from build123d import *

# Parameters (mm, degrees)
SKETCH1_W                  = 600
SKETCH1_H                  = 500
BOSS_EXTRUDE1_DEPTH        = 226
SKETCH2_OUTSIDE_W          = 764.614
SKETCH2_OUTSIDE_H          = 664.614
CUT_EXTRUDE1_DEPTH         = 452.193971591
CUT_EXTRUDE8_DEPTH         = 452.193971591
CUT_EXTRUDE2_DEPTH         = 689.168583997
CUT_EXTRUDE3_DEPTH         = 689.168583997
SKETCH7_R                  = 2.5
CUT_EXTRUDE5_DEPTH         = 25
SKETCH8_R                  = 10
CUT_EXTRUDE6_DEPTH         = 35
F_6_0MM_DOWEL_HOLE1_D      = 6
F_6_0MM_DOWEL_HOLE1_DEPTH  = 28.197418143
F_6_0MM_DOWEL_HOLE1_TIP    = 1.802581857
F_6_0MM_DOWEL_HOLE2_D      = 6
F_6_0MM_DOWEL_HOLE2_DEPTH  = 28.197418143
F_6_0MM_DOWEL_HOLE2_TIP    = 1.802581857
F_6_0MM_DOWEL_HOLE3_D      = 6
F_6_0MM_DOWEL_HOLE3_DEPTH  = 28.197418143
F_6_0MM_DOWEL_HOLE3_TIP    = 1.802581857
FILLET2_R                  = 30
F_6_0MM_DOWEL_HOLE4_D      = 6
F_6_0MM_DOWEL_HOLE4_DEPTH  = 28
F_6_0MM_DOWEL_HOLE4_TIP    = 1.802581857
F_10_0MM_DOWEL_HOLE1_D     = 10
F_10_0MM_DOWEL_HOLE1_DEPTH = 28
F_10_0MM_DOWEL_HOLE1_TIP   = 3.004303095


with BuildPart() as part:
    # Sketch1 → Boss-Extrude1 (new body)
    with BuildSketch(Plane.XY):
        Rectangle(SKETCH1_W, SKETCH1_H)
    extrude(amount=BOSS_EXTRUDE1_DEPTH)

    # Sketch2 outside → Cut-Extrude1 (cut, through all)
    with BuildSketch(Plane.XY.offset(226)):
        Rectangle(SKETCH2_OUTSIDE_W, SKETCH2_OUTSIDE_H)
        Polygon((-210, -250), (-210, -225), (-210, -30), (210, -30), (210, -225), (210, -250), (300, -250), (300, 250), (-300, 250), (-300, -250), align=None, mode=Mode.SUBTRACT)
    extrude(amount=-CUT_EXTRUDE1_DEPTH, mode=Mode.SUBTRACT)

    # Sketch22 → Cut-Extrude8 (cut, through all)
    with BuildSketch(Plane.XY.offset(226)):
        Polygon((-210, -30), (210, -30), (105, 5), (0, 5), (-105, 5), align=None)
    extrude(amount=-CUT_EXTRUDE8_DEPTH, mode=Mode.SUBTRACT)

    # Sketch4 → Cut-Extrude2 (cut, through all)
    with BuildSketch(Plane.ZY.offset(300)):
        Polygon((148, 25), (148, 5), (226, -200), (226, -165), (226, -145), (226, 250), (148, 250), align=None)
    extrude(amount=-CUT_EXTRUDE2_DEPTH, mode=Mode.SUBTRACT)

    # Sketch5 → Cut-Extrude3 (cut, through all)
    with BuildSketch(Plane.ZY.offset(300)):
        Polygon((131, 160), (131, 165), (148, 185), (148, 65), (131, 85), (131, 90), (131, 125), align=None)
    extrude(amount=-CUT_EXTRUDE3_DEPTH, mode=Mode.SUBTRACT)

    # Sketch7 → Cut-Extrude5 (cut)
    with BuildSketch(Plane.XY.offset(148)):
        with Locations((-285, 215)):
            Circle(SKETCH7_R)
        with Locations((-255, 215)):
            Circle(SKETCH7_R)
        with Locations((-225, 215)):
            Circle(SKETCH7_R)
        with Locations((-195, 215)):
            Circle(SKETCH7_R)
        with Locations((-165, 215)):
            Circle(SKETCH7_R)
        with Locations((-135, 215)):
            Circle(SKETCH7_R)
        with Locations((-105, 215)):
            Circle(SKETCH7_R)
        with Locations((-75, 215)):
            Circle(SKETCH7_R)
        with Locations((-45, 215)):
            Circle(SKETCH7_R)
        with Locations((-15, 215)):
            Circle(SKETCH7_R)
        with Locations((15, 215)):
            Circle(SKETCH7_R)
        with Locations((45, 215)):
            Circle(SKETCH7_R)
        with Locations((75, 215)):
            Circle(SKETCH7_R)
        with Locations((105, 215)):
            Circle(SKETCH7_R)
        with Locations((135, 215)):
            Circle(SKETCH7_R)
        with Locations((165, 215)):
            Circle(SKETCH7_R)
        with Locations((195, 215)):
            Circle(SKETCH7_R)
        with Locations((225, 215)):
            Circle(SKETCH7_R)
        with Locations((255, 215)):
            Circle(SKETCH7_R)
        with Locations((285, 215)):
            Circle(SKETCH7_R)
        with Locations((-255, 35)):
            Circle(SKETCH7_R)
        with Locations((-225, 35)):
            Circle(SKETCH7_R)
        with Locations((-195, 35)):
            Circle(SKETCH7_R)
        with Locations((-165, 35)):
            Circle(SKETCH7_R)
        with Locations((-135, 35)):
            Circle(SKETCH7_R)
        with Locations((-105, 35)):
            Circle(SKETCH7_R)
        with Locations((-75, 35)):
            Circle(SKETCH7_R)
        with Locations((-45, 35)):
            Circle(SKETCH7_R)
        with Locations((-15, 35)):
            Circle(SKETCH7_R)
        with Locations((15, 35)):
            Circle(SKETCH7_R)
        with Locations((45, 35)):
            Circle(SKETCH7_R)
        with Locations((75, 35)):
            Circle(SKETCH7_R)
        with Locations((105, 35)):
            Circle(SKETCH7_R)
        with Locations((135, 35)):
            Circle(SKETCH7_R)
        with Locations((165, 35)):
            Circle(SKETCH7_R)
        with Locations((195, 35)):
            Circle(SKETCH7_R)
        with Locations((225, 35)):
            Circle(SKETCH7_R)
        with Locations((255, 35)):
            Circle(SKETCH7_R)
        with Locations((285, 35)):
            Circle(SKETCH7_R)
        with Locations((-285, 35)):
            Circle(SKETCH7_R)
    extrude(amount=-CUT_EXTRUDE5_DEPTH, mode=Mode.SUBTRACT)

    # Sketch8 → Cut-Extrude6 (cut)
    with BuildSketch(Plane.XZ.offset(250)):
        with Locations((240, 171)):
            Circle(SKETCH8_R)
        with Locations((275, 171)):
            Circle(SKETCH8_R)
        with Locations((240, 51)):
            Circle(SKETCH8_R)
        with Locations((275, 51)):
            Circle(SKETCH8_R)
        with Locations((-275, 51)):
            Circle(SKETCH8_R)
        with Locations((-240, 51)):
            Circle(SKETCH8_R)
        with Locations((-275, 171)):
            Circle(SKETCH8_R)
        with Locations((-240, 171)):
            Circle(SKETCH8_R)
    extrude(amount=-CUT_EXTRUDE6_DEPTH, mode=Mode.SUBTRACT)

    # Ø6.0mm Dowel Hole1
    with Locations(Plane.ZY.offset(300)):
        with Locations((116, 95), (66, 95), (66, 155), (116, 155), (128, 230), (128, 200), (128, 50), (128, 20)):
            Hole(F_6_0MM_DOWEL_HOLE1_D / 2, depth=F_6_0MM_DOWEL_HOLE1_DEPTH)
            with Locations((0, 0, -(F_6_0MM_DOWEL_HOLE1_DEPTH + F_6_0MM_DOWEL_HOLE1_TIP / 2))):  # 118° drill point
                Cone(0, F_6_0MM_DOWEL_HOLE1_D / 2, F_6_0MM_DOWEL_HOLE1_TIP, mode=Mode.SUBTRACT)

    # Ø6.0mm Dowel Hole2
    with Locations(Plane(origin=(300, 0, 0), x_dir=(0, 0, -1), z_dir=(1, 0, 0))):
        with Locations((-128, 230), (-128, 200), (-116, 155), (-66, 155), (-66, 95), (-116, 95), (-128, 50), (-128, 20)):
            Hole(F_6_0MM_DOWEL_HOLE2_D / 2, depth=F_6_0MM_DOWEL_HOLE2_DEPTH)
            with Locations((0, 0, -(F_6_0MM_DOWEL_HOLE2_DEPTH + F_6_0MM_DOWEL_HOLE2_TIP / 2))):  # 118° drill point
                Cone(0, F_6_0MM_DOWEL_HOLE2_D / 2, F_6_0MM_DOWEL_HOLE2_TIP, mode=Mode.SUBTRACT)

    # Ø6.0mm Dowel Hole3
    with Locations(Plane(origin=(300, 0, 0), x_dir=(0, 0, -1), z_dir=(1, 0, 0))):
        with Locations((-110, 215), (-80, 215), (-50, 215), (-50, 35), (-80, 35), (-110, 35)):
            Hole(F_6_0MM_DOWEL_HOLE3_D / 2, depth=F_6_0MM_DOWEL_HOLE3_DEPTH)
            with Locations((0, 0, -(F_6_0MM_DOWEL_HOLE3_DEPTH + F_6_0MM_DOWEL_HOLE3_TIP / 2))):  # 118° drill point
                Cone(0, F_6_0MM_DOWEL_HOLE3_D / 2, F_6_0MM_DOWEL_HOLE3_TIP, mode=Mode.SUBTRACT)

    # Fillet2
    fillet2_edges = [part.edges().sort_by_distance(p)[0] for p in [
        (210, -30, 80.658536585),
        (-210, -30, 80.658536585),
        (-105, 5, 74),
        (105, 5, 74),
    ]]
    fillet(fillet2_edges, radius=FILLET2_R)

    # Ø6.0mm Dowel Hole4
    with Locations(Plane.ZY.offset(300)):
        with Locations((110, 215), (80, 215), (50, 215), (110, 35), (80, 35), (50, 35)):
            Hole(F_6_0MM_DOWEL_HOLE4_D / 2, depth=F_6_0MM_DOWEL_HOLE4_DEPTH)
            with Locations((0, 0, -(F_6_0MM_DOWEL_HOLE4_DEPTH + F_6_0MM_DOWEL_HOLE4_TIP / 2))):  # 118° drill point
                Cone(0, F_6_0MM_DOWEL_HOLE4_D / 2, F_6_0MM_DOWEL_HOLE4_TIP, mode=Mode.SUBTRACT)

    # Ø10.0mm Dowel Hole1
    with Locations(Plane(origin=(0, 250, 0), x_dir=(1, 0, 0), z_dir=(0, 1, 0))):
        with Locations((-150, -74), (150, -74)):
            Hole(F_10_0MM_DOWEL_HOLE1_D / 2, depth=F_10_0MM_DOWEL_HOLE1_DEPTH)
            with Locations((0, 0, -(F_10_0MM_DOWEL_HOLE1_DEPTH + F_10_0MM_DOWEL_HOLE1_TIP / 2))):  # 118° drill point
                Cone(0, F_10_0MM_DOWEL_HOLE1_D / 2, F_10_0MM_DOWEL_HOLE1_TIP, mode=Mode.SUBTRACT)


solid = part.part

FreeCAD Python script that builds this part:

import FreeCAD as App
import Part
import Sketcher
Q = App.Units.Quantity


def edges_at(feature, points):
    """Names of the edges that pass closest to the given points."""
    edges = feature.Shape.Edges
    near = lambda p: min(range(len(edges)), key=lambda i: edges[i].distToShape(Part.Vertex(*p))[0])
    return sorted({f"Edge{near(p) + 1}" for p in points})


def add_polygon(sketch, points):
    """Adds a closed chain of lines whose ends are joined by coincident constraints."""
    first, n = sketch.GeometryCount, len(points)
    for a, b in zip(points, points[1:] + points[:1]):
        sketch.addGeometry(Part.LineSegment(App.Vector(*a, 0), App.Vector(*b, 0)), False)
    for i in range(n):
        sketch.addConstraint(Sketcher.Constraint("Coincident", first + i, 2, first + (i + 1) % n, 1))

doc = App.newDocument("Part")
params = doc.addObject("Spreadsheet::Sheet", "Params")
for row, (alias, value) in enumerate([
    ("sketch1_width", "600 mm"),
    ("sketch1_height", "500 mm"),
    ("pad1_length", "226 mm"),
    ("sketch2_width", "90 mm"),
    ("sketch2_width2", "600 mm"),
    ("sketch2_height", "220 mm"),
    ("sketch2_height2", "500 mm"),
    ("sketch3_width", "420 mm"),
    ("sketch3_width2", "210 mm"),
    ("sketch4_width", "450 mm"),
    ("sketch4_width2", "245 mm"),
    ("sketch4_height", "78 mm"),
    ("sketch5_width", "80 mm"),
    ("sketch5_width2", "120 mm"),
    ("sketch6_diameter", "5 mm"),
    ("pocket5_length", "25 mm"),
    ("sketch7_diameter", "20 mm"),
    ("pocket6_length", "35 mm"),
    ("sketch8_diameter", "6 mm"),
    ("hole_diameter", "6 mm"),
    ("hole_depth", "28.197418 mm"),
    ("sketch9_diameter", "6 mm"),
    ("hole2_diameter", "6 mm"),
    ("hole2_depth", "28.197418 mm"),
    ("sketch10_diameter", "6 mm"),
    ("hole3_diameter", "6 mm"),
    ("hole3_depth", "28.197418 mm"),
    ("fillet_radius", "30 mm"),
    ("sketch11_diameter", "6 mm"),
    ("hole4_diameter", "6 mm"),
    ("hole4_depth", "28 mm"),
    ("sketch12_diameter", "10 mm"),
    ("hole5_diameter", "10 mm"),
    ("hole5_depth", "28 mm"),
], start=1):
    params.set(f"A{row}", alias)
    params.set(f"B{row}", "=" + value)
    params.setAlias(f"B{row}", alias)

body = doc.addObject("PartDesign::Body", "Body")

# Sketch on XY plane
sketch1 = body.newObject("Sketcher::SketchObject", "Sketch")
sketch1.AttachmentSupport = (doc.getObject("XY_Plane"), [""])
sketch1.MapMode = "FlatFace"
add_polygon(sketch1, [(-300, 250), (-300, -250), (300, -250), (300, 250)])  # lines 0-3
sketch1.addConstraint(Sketcher.Constraint("Vertical", 0))
sketch1.addConstraint(Sketcher.Constraint("Horizontal", 1))
sketch1.addConstraint(Sketcher.Constraint("Vertical", 2))
sketch1.addConstraint(Sketcher.Constraint("Horizontal", 3))
sketch1.addConstraint(Sketcher.Constraint("Symmetric", 0, 2, 2, 2, -1, 1))
sketch1.addConstraint(Sketcher.Constraint("DistanceX", 1, 1, 1, 2, Q("600 mm")))
sketch1.addConstraint(Sketcher.Constraint("DistanceY", 0, 2, 0, 1, Q("500 mm")))
sketch1.setExpression("Constraints[9]", "Params.sketch1_width")
sketch1.setExpression("Constraints[10]", "Params.sketch1_height")
pad1 = body.newObject("PartDesign::Pad", "Pad")
pad1.Profile = sketch1
pad1.setExpression("Length", "Params.pad1_length")

# Sketch on XY plane
sketch2 = body.newObject("Sketcher::SketchObject", "Sketch001")
sketch2.AttachmentSupport = (doc.getObject("XY_Plane"), [""])
sketch2.MapMode = "FlatFace"
sketch2.AttachmentOffset = App.Placement(App.Vector(0, 0, 226), App.Rotation())
add_polygon(sketch2, [(-382, 332), (-382, -332), (382, -332), (382, 332)])  # lines 0-3
add_polygon(sketch2, [(-210, -30), (-210, -250), (-300, -250), (-300, 250), (300, 250), (300, -250), (210, -250), (210, -30)])  # lines 4-11
sketch2.addConstraint(Sketcher.Constraint("Vertical", 0))
sketch2.addConstraint(Sketcher.Constraint("Horizontal", 1))
sketch2.addConstraint(Sketcher.Constraint("Vertical", 2))
sketch2.addConstraint(Sketcher.Constraint("Horizontal", 3))
sketch2.addConstraint(Sketcher.Constraint("Vertical", 4))
sketch2.addConstraint(Sketcher.Constraint("Horizontal", 5))
sketch2.addConstraint(Sketcher.Constraint("Vertical", 6))
sketch2.addConstraint(Sketcher.Constraint("Horizontal", 7))
sketch2.addConstraint(Sketcher.Constraint("Vertical", 8))
sketch2.addConstraint(Sketcher.Constraint("Horizontal", 9))
sketch2.addConstraint(Sketcher.Constraint("Vertical", 10))
sketch2.addConstraint(Sketcher.Constraint("Horizontal", 11))
sketch2.addConstraint(Sketcher.Constraint("Symmetric", 0, 2, 2, 2, -1, 1))
sketch2.addConstraint(Sketcher.Constraint("Symmetric", 5, 2, 7, 2, -1, 1))
sketch2.addConstraint(Sketcher.Constraint("Symmetric", 4, 2, 9, 2, -2))
sketch2.addConstraint(Sketcher.Constraint("DistanceX", 5, 2, 5, 1, Q("90 mm")))
sketch2.addConstraint(Sketcher.Constraint("DistanceX", 7, 1, 7, 2, Q("600 mm")))
sketch2.addConstraint(Sketcher.Constraint("DistanceY", 4, 2, 4, 1, Q("220 mm")))
sketch2.addConstraint(Sketcher.Constraint("DistanceY", 6, 1, 6, 2, Q("500 mm")))
sketch2.addConstraint(Sketcher.Constraint("DistanceX", 1, 1, 1, 2, Q("764.614 mm")))
sketch2.addConstraint(Sketcher.Constraint("DistanceY", 0, 2, 0, 1, Q("664.614 mm")))
sketch2.setExpression("Constraints[27]", "Params.sketch2_width")
sketch2.setExpression("Constraints[28]", "Params.sketch2_width2")
sketch2.setExpression("Constraints[29]", "Params.sketch2_height")
sketch2.setExpression("Constraints[30]", "Params.sketch2_height2")
pocket1 = body.newObject("PartDesign::Pocket", "Pocket")
pocket1.Profile = sketch2
pocket1.Type = "ThroughAll"

# Sketch on XY plane
sketch3 = body.newObject("Sketcher::SketchObject", "Sketch002")
sketch3.AttachmentSupport = (doc.getObject("XY_Plane"), [""])
sketch3.MapMode = "FlatFace"
sketch3.AttachmentOffset = App.Placement(App.Vector(0, 0, 226), App.Rotation())
add_polygon(sketch3, [(-210, -30), (210, -30), (105, 5), (-105, 5)])  # lines 0-3
sketch3.addConstraint(Sketcher.Constraint("Horizontal", 0))
sketch3.addConstraint(Sketcher.Constraint("Horizontal", 2))
sketch3.addConstraint(Sketcher.Constraint("Equal", 1, 3))
sketch3.addConstraint(Sketcher.Constraint("DistanceX", 0, 1, 0, 2, Q("420 mm")))
sketch3.addConstraint(Sketcher.Constraint("DistanceX", 2, 2, 2, 1, Q("210 mm")))
sketch3.addConstraint(Sketcher.Constraint("DistanceX", -1, 1, 0, 2, Q("210 mm")))
sketch3.addConstraint(Sketcher.Constraint("DistanceY", 0, 2, -1, 1, Q("30 mm")))
sketch3.addConstraint(Sketcher.Constraint("DistanceY", -1, 1, 1, 2, Q("5 mm")))
sketch3.setExpression("Constraints[7]", "Params.sketch3_width")
sketch3.setExpression("Constraints[8]", "Params.sketch3_width2")
pocket2 = body.newObject("PartDesign::Pocket", "Pocket001")
pocket2.Profile = sketch3
pocket2.Type = "ThroughAll"

# Sketch on YZ plane
sketch4 = body.newObject("Sketcher::SketchObject", "Sketch003")
sketch4.AttachmentSupport = (doc.getObject("YZ_Plane"), [""])
sketch4.MapMode = "FlatFace"
sketch4.AttachmentOffset = App.Placement(App.Vector(0, 0, -300), App.Rotation())
add_polygon(sketch4, [(5, 148), (-200, 226), (250, 226), (250, 148)])  # lines 0-3
sketch4.addConstraint(Sketcher.Constraint("Horizontal", 1))
sketch4.addConstraint(Sketcher.Constraint("Vertical", 2))
sketch4.addConstraint(Sketcher.Constraint("Horizontal", 3))
sketch4.addConstraint(Sketcher.Constraint("DistanceX", 1, 1, 1, 2, Q("450 mm")))
sketch4.addConstraint(Sketcher.Constraint("DistanceX", 3, 2, 3, 1, Q("245 mm")))
sketch4.addConstraint(Sketcher.Constraint("DistanceY", 2, 2, 2, 1, Q("78 mm")))
sketch4.addConstraint(Sketcher.Constraint("DistanceX", 0, 2, -1, 1, Q("200 mm")))
sketch4.addConstraint(Sketcher.Constraint("DistanceY", -1, 1, 0, 2, Q("226 mm")))
sketch4.setExpression("Constraints[7]", "Params.sketch4_width")
sketch4.setExpression("Constraints[8]", "Params.sketch4_width2")
sketch4.setExpression("Constraints[9]", "Params.sketch4_height")
pocket3 = body.newObject("PartDesign::Pocket", "Pocket002")
pocket3.Profile = sketch4
pocket3.Type = "ThroughAll"
pocket3.Reversed = True

# Sketch on YZ plane
sketch5 = body.newObject("Sketcher::SketchObject", "Sketch004")
sketch5.AttachmentSupport = (doc.getObject("YZ_Plane"), [""])
sketch5.MapMode = "FlatFace"
sketch5.AttachmentOffset = App.Placement(App.Vector(0, 0, -300), App.Rotation())
add_polygon(sketch5, [(165, 131), (85, 131), (65, 148), (185, 148)])  # lines 0-3
sketch5.addConstraint(Sketcher.Constraint("Horizontal", 0))
sketch5.addConstraint(Sketcher.Constraint("Horizontal", 2))
sketch5.addConstraint(Sketcher.Constraint("Equal", 1, 3))
sketch5.addConstraint(Sketcher.Constraint("DistanceX", 0, 2, 0, 1, Q("80 mm")))
sketch5.addConstraint(Sketcher.Constraint("DistanceX", 2, 1, 2, 2, Q("120 mm")))
sketch5.addConstraint(Sketcher.Constraint("DistanceX", -1, 1, 0, 2, Q("85 mm")))
sketch5.addConstraint(Sketcher.Constraint("DistanceY", -1, 1, 0, 2, Q("131 mm")))
sketch5.addConstraint(Sketcher.Constraint("DistanceY", -1, 1, 1, 2, Q("148 mm")))
sketch5.setExpression("Constraints[7]", "Params.sketch5_width")
sketch5.setExpression("Constraints[8]", "Params.sketch5_width2")
pocket4 = body.newObject("PartDesign::Pocket", "Pocket003")
pocket4.Profile = sketch5
pocket4.Type = "ThroughAll"
pocket4.Reversed = True

# Sketch on XY plane
sketch6 = body.newObject("Sketcher::SketchObject", "Sketch005")
sketch6.AttachmentSupport = (doc.getObject("XY_Plane"), [""])
sketch6.MapMode = "FlatFace"
sketch6.AttachmentOffset = App.Placement(App.Vector(0, 0, 148), App.Rotation())
sketch6.addGeometry(Part.Circle(App.Vector(-285, 215, 0), App.Vector(0, 0, 1), 2.5), False)
sketch6.addGeometry(Part.Circle(App.Vector(-255, 215, 0), App.Vector(0, 0, 1), 2.5), False)
sketch6.addGeometry(Part.Circle(App.Vector(-225, 215, 0), App.Vector(0, 0, 1), 2.5), False)
sketch6.addGeometry(Part.Circle(App.Vector(-195, 215, 0), App.Vector(0, 0, 1), 2.5), False)
sketch6.addGeometry(Part.Circle(App.Vector(-165, 215, 0), App.Vector(0, 0, 1), 2.5), False)
sketch6.addGeometry(Part.Circle(App.Vector(-135, 215, 0), App.Vector(0, 0, 1), 2.5), False)
sketch6.addGeometry(Part.Circle(App.Vector(-105, 215, 0), App.Vector(0, 0, 1), 2.5), False)
sketch6.addGeometry(Part.Circle(App.Vector(-75, 215, 0), App.Vector(0, 0, 1), 2.5), False)
sketch6.addGeometry(Part.Circle(App.Vector(-45, 215, 0), App.Vector(0, 0, 1), 2.5), False)
sketch6.addGeometry(Part.Circle(App.Vector(-15, 215, 0), App.Vector(0, 0, 1), 2.5), False)
sketch6.addGeometry(Part.Circle(App.Vector(15, 215, 0), App.Vector(0, 0, 1), 2.5), False)
sketch6.addGeometry(Part.Circle(App.Vector(45, 215, 0), App.Vector(0, 0, 1), 2.5), False)
sketch6.addGeometry(Part.Circle(App.Vector(75, 215, 0), App.Vector(0, 0, 1), 2.5), False)
sketch6.addGeometry(Part.Circle(App.Vector(105, 215, 0), App.Vector(0, 0, 1), 2.5), False)
sketch6.addGeometry(Part.Circle(App.Vector(135, 215, 0), App.Vector(0, 0, 1), 2.5), False)
sketch6.addGeometry(Part.Circle(App.Vector(165, 215, 0), App.Vector(0, 0, 1), 2.5), False)
sketch6.addGeometry(Part.Circle(App.Vector(195, 215, 0), App.Vector(0, 0, 1), 2.5), False)
sketch6.addGeometry(Part.Circle(App.Vector(225, 215, 0), App.Vector(0, 0, 1), 2.5), False)
sketch6.addGeometry(Part.Circle(App.Vector(255, 215, 0), App.Vector(0, 0, 1), 2.5), False)
sketch6.addGeometry(Part.Circle(App.Vector(285, 215, 0), App.Vector(0, 0, 1), 2.5), False)
sketch6.addGeometry(Part.Circle(App.Vector(-255, 35, 0), App.Vector(0, 0, 1), 2.5), False)
sketch6.addGeometry(Part.Circle(App.Vector(-225, 35, 0), App.Vector(0, 0, 1), 2.5), False)
sketch6.addGeometry(Part.Circle(App.Vector(-195, 35, 0), App.Vector(0, 0, 1), 2.5), False)
sketch6.addGeometry(Part.Circle(App.Vector(-165, 35, 0), App.Vector(0, 0, 1), 2.5), False)
sketch6.addGeometry(Part.Circle(App.Vector(-135, 35, 0), App.Vector(0, 0, 1), 2.5), False)
sketch6.addGeometry(Part.Circle(App.Vector(-105, 35, 0), App.Vector(0, 0, 1), 2.5), False)
sketch6.addGeometry(Part.Circle(App.Vector(-75, 35, 0), App.Vector(0, 0, 1), 2.5), False)
sketch6.addGeometry(Part.Circle(App.Vector(-45, 35, 0), App.Vector(0, 0, 1), 2.5), False)
sketch6.addGeometry(Part.Circle(App.Vector(-15, 35, 0), App.Vector(0, 0, 1), 2.5), False)
sketch6.addGeometry(Part.Circle(App.Vector(15, 35, 0), App.Vector(0, 0, 1), 2.5), False)
sketch6.addGeometry(Part.Circle(App.Vector(45, 35, 0), App.Vector(0, 0, 1), 2.5), False)
sketch6.addGeometry(Part.Circle(App.Vector(75, 35, 0), App.Vector(0, 0, 1), 2.5), False)
sketch6.addGeometry(Part.Circle(App.Vector(105, 35, 0), App.Vector(0, 0, 1), 2.5), False)
sketch6.addGeometry(Part.Circle(App.Vector(135, 35, 0), App.Vector(0, 0, 1), 2.5), False)
sketch6.addGeometry(Part.Circle(App.Vector(165, 35, 0), App.Vector(0, 0, 1), 2.5), False)
sketch6.addGeometry(Part.Circle(App.Vector(195, 35, 0), App.Vector(0, 0, 1), 2.5), False)
sketch6.addGeometry(Part.Circle(App.Vector(225, 35, 0), App.Vector(0, 0, 1), 2.5), False)
sketch6.addGeometry(Part.Circle(App.Vector(255, 35, 0), App.Vector(0, 0, 1), 2.5), False)
sketch6.addGeometry(Part.Circle(App.Vector(285, 35, 0), App.Vector(0, 0, 1), 2.5), False)
sketch6.addGeometry(Part.Circle(App.Vector(-285, 35, 0), App.Vector(0, 0, 1), 2.5), False)
sketch6.addConstraint(Sketcher.Constraint("Equal", 0, 1))
sketch6.addConstraint(Sketcher.Constraint("Equal", 1, 2))
sketch6.addConstraint(Sketcher.Constraint("Equal", 2, 3))
sketch6.addConstraint(Sketcher.Constraint("Equal", 3, 4))
sketch6.addConstraint(Sketcher.Constraint("Equal", 4, 5))
sketch6.addConstraint(Sketcher.Constraint("Equal", 5, 6))
sketch6.addConstraint(Sketcher.Constraint("Equal", 6, 7))
sketch6.addConstraint(Sketcher.Constraint("Equal", 7, 8))
sketch6.addConstraint(Sketcher.Constraint("Equal", 8, 9))
sketch6.addConstraint(Sketcher.Constraint("Equal", 9, 10))
sketch6.addConstraint(Sketcher.Constraint("Equal", 10, 11))
sketch6.addConstraint(Sketcher.Constraint("Equal", 11, 12))
sketch6.addConstraint(Sketcher.Constraint("Equal", 12, 13))
sketch6.addConstraint(Sketcher.Constraint("Equal", 13, 14))
sketch6.addConstraint(Sketcher.Constraint("Equal", 14, 15))
sketch6.addConstraint(Sketcher.Constraint("Equal", 15, 16))
sketch6.addConstraint(Sketcher.Constraint("Equal", 16, 17))
sketch6.addConstraint(Sketcher.Constraint("Equal", 17, 18))
sketch6.addConstraint(Sketcher.Constraint("Equal", 18, 19))
sketch6.addConstraint(Sketcher.Constraint("Equal", 19, 20))
sketch6.addConstraint(Sketcher.Constraint("Equal", 20, 21))
sketch6.addConstraint(Sketcher.Constraint("Equal", 21, 22))
sketch6.addConstraint(Sketcher.Constraint("Equal", 22, 23))
sketch6.addConstraint(Sketcher.Constraint("Equal", 23, 24))
sketch6.addConstraint(Sketcher.Constraint("Equal", 24, 25))
sketch6.addConstraint(Sketcher.Constraint("Equal", 25, 26))
sketch6.addConstraint(Sketcher.Constraint("Equal", 26, 27))
sketch6.addConstraint(Sketcher.Constraint("Equal", 27, 28))
sketch6.addConstraint(Sketcher.Constraint("Equal", 28, 29))
sketch6.addConstraint(Sketcher.Constraint("Equal", 29, 30))
sketch6.addConstraint(Sketcher.Constraint("Equal", 30, 31))
sketch6.addConstraint(Sketcher.Constraint("Equal", 31, 32))
sketch6.addConstraint(Sketcher.Constraint("Equal", 32, 33))
sketch6.addConstraint(Sketcher.Constraint("Equal", 33, 34))
sketch6.addConstraint(Sketcher.Constraint("Equal", 34, 35))
sketch6.addConstraint(Sketcher.Constraint("Equal", 35, 36))
sketch6.addConstraint(Sketcher.Constraint("Equal", 36, 37))
sketch6.addConstraint(Sketcher.Constraint("Equal", 37, 38))
sketch6.addConstraint(Sketcher.Constraint("Equal", 38, 39))
sketch6.addConstraint(Sketcher.Constraint("Symmetric", 9, 3, 10, 3, -2))
sketch6.addConstraint(Sketcher.Constraint("Symmetric", 8, 3, 11, 3, -2))
sketch6.addConstraint(Sketcher.Constraint("Symmetric", 7, 3, 12, 3, -2))
sketch6.addConstraint(Sketcher.Constraint("Symmetric", 6, 3, 13, 3, -2))
sketch6.addConstraint(Sketcher.Constraint("Symmetric", 5, 3, 14, 3, -2))
sketch6.addConstraint(Sketcher.Constraint("Symmetric", 4, 3, 15, 3, -2))
sketch6.addConstraint(Sketcher.Constraint("Symmetric", 3, 3, 16, 3, -2))
sketch6.addConstraint(Sketcher.Constraint("Symmetric", 2, 3, 17, 3, -2))
sketch6.addConstraint(Sketcher.Constraint("Symmetric", 1, 3, 18, 3, -2))
sketch6.addConstraint(Sketcher.Constraint("Symmetric", 0, 3, 19, 3, -2))
sketch6.addConstraint(Sketcher.Constraint("Symmetric", 28, 3, 29, 3, -2))
sketch6.addConstraint(Sketcher.Constraint("Symmetric", 27, 3, 30, 3, -2))
sketch6.addConstraint(Sketcher.Constraint("Symmetric", 26, 3, 31, 3, -2))
sketch6.addConstraint(Sketcher.Constraint("Symmetric", 25, 3, 32, 3, -2))
sketch6.addConstraint(Sketcher.Constraint("Symmetric", 24, 3, 33, 3, -2))
sketch6.addConstraint(Sketcher.Constraint("Symmetric", 23, 3, 34, 3, -2))
sketch6.addConstraint(Sketcher.Constraint("Symmetric", 22, 3, 35, 3, -2))
sketch6.addConstraint(Sketcher.Constraint("Symmetric", 21, 3, 36, 3, -2))
sketch6.addConstraint(Sketcher.Constraint("Symmetric", 20, 3, 37, 3, -2))
sketch6.addConstraint(Sketcher.Constraint("Symmetric", 38, 3, 39, 3, -2))
sketch6.addConstraint(Sketcher.Constraint("Horizontal", 0, 3, 1, 3))
sketch6.addConstraint(Sketcher.Constraint("Horizontal", 1, 3, 2, 3))
sketch6.addConstraint(Sketcher.Constraint("Horizontal", 2, 3, 3, 3))
sketch6.addConstraint(Sketcher.Constraint("Horizontal", 3, 3, 4, 3))
sketch6.addConstraint(Sketcher.Constraint("Horizontal", 4, 3, 5, 3))
sketch6.addConstraint(Sketcher.Constraint("Horizontal", 5, 3, 6, 3))
sketch6.addConstraint(Sketcher.Constraint("Horizontal", 6, 3, 7, 3))
sketch6.addConstraint(Sketcher.Constraint("Horizontal", 7, 3, 8, 3))
sketch6.addConstraint(Sketcher.Constraint("Horizontal", 8, 3, 9, 3))
sketch6.addConstraint(Sketcher.Constraint("Horizontal", 20, 3, 21, 3))
sketch6.addConstraint(Sketcher.Constraint("Horizontal", 21, 3, 22, 3))
sketch6.addConstraint(Sketcher.Constraint("Horizontal", 22, 3, 23, 3))
sketch6.addConstraint(Sketcher.Constraint("Horizontal", 23, 3, 24, 3))
sketch6.addConstraint(Sketcher.Constraint("Horizontal", 24, 3, 25, 3))
sketch6.addConstraint(Sketcher.Constraint("Horizontal", 25, 3, 26, 3))
sketch6.addConstraint(Sketcher.Constraint("Horizontal", 26, 3, 27, 3))
sketch6.addConstraint(Sketcher.Constraint("Horizontal", 27, 3, 28, 3))
sketch6.addConstraint(Sketcher.Constraint("Horizontal", 37, 3, 38, 3))
sketch6.addConstraint(Sketcher.Constraint("Vertical", 1, 3, 20, 3))
sketch6.addConstraint(Sketcher.Constraint("Vertical", 2, 3, 21, 3))
sketch6.addConstraint(Sketcher.Constraint("Vertical", 3, 3, 22, 3))
sketch6.addConstraint(Sketcher.Constraint("Vertical", 4, 3, 23, 3))
sketch6.addConstraint(Sketcher.Constraint("Vertical", 5, 3, 24, 3))
sketch6.addConstraint(Sketcher.Constraint("Vertical", 6, 3, 25, 3))
sketch6.addConstraint(Sketcher.Constraint("Vertical", 7, 3, 26, 3))
sketch6.addConstraint(Sketcher.Constraint("Vertical", 8, 3, 27, 3))
sketch6.addConstraint(Sketcher.Constraint("Vertical", 9, 3, 28, 3))
sketch6.addConstraint(Sketcher.Constraint("Vertical", 19, 3, 38, 3))
sketch6.addConstraint(Sketcher.Constraint("Diameter", 0, Q("5 mm")))
sketch6.addConstraint(Sketcher.Constraint("DistanceX", 0, 3, -1, 1, Q("285 mm")))
sketch6.addConstraint(Sketcher.Constraint("DistanceY", -1, 1, 0, 3, Q("215 mm")))
sketch6.addConstraint(Sketcher.Constraint("DistanceX", 1, 3, -1, 1, Q("255 mm")))
sketch6.addConstraint(Sketcher.Constraint("DistanceX", 2, 3, -1, 1, Q("225 mm")))
sketch6.addConstraint(Sketcher.Constraint("DistanceX", 3, 3, -1, 1, Q("195 mm")))
sketch6.addConstraint(Sketcher.Constraint("DistanceX", 4, 3, -1, 1, Q("165 mm")))
sketch6.addConstraint(Sketcher.Constraint("DistanceX", 5, 3, -1, 1, Q("135 mm")))
sketch6.addConstraint(Sketcher.Constraint("DistanceX", 6, 3, -1, 1, Q("105 mm")))
sketch6.addConstraint(Sketcher.Constraint("DistanceX", 7, 3, -1, 1, Q("75 mm")))
sketch6.addConstraint(Sketcher.Constraint("DistanceX", 8, 3, -1, 1, Q("45 mm")))
sketch6.addConstraint(Sketcher.Constraint("DistanceX", 9, 3, -1, 1, Q("15 mm")))
sketch6.addConstraint(Sketcher.Constraint("DistanceY", -1, 1, 20, 3, Q("35 mm")))
sketch6.setExpression("Constraints[87]", "Params.sketch6_diameter")
pocket5 = body.newObject("PartDesign::Pocket", "Pocket004")
pocket5.Profile = sketch6
pocket5.setExpression("Length", "Params.pocket5_length")

# Sketch on XZ plane
sketch7 = body.newObject("Sketcher::SketchObject", "Sketch006")
sketch7.AttachmentSupport = (doc.getObject("XZ_Plane"), [""])
sketch7.MapMode = "FlatFace"
sketch7.AttachmentOffset = App.Placement(App.Vector(0, 0, 250), App.Rotation())
sketch7.addGeometry(Part.Circle(App.Vector(240, 171, 0), App.Vector(0, 0, 1), 10), False)
sketch7.addGeometry(Part.Circle(App.Vector(275, 171, 0), App.Vector(0, 0, 1), 10), False)
sketch7.addGeometry(Part.Circle(App.Vector(240, 51, 0), App.Vector(0, 0, 1), 10), False)
sketch7.addGeometry(Part.Circle(App.Vector(275, 51, 0), App.Vector(0, 0, 1), 10), False)
sketch7.addGeometry(Part.Circle(App.Vector(-275, 51, 0), App.Vector(0, 0, 1), 10), False)
sketch7.addGeometry(Part.Circle(App.Vector(-240, 51, 0), App.Vector(0, 0, 1), 10), False)
sketch7.addGeometry(Part.Circle(App.Vector(-275, 171, 0), App.Vector(0, 0, 1), 10), False)
sketch7.addGeometry(Part.Circle(App.Vector(-240, 171, 0), App.Vector(0, 0, 1), 10), False)
sketch7.addConstraint(Sketcher.Constraint("Equal", 0, 1))
sketch7.addConstraint(Sketcher.Constraint("Equal", 1, 2))
sketch7.addConstraint(Sketcher.Constraint("Equal", 2, 3))
sketch7.addConstraint(Sketcher.Constraint("Equal", 3, 4))
sketch7.addConstraint(Sketcher.Constraint("Equal", 4, 5))
sketch7.addConstraint(Sketcher.Constraint("Equal", 5, 6))
sketch7.addConstraint(Sketcher.Constraint("Equal", 6, 7))
sketch7.addConstraint(Sketcher.Constraint("Symmetric", 3, 3, 4, 3, -2))
sketch7.addConstraint(Sketcher.Constraint("Symmetric", 2, 3, 5, 3, -2))
sketch7.addConstraint(Sketcher.Constraint("Symmetric", 1, 3, 6, 3, -2))
sketch7.addConstraint(Sketcher.Constraint("Symmetric", 0, 3, 7, 3, -2))
sketch7.addConstraint(Sketcher.Constraint("Horizontal", 0, 3, 1, 3))
sketch7.addConstraint(Sketcher.Constraint("Horizontal", 2, 3, 3, 3))
sketch7.addConstraint(Sketcher.Constraint("Vertical", 0, 3, 2, 3))
sketch7.addConstraint(Sketcher.Constraint("Vertical", 1, 3, 3, 3))
sketch7.addConstraint(Sketcher.Constraint("Diameter", 0, Q("20 mm")))
sketch7.addConstraint(Sketcher.Constraint("DistanceX", -1, 1, 0, 3, Q("240 mm")))
sketch7.addConstraint(Sketcher.Constraint("DistanceY", -1, 1, 0, 3, Q("171 mm")))
sketch7.addConstraint(Sketcher.Constraint("DistanceX", -1, 1, 1, 3, Q("275 mm")))
sketch7.addConstraint(Sketcher.Constraint("DistanceY", -1, 1, 2, 3, Q("51 mm")))
sketch7.setExpression("Constraints[15]", "Params.sketch7_diameter")
pocket6 = body.newObject("PartDesign::Pocket", "Pocket005")
pocket6.Profile = sketch7
pocket6.setExpression("Length", "Params.pocket6_length")

# Sketch on YZ plane
sketch8 = body.newObject("Sketcher::SketchObject", "Sketch007")
sketch8.AttachmentSupport = (doc.getObject("YZ_Plane"), [""])
sketch8.MapMode = "FlatFace"
sketch8.AttachmentOffset = App.Placement(App.Vector(0, 0, -300), App.Rotation())
sketch8.addGeometry(Part.Circle(App.Vector(95, 116, 0), App.Vector(0, 0, 1), 3), False)
sketch8.addGeometry(Part.Circle(App.Vector(95, 66, 0), App.Vector(0, 0, 1), 3), False)
sketch8.addGeometry(Part.Circle(App.Vector(155, 66, 0), App.Vector(0, 0, 1), 3), False)
sketch8.addGeometry(Part.Circle(App.Vector(155, 116, 0), App.Vector(0, 0, 1), 3), False)
sketch8.addGeometry(Part.Circle(App.Vector(230, 128, 0), App.Vector(0, 0, 1), 3), False)
sketch8.addGeometry(Part.Circle(App.Vector(200, 128, 0), App.Vector(0, 0, 1), 3), False)
sketch8.addGeometry(Part.Circle(App.Vector(50, 128, 0), App.Vector(0, 0, 1), 3), False)
sketch8.addGeometry(Part.Circle(App.Vector(20, 128, 0), App.Vector(0, 0, 1), 3), False)
sketch8.addConstraint(Sketcher.Constraint("Equal", 0, 1))
sketch8.addConstraint(Sketcher.Constraint("Equal", 1, 2))
sketch8.addConstraint(Sketcher.Constraint("Equal", 2, 3))
sketch8.addConstraint(Sketcher.Constraint("Equal", 3, 4))
sketch8.addConstraint(Sketcher.Constraint("Equal", 4, 5))
sketch8.addConstraint(Sketcher.Constraint("Equal", 5, 6))
sketch8.addConstraint(Sketcher.Constraint("Equal", 6, 7))
sketch8.addConstraint(Sketcher.Constraint("Horizontal", 1, 3, 2, 3))
sketch8.addConstraint(Sketcher.Constraint("Horizontal", 0, 3, 3, 3))
sketch8.addConstraint(Sketcher.Constraint("Horizontal", 4, 3, 5, 3))
sketch8.addConstraint(Sketcher.Constraint("Horizontal", 5, 3, 6, 3))
sketch8.addConstraint(Sketcher.Constraint("Horizontal", 6, 3, 7, 3))
sketch8.addConstraint(Sketcher.Constraint("Vertical", 0, 3, 1, 3))
sketch8.addConstraint(Sketcher.Constraint("Vertical", 2, 3, 3, 3))
sketch8.addConstraint(Sketcher.Constraint("Diameter", 0, Q("6 mm")))
sketch8.addConstraint(Sketcher.Constraint("DistanceX", -1, 1, 0, 3, Q("95 mm")))
sketch8.addConstraint(Sketcher.Constraint("DistanceY", -1, 1, 0, 3, Q("116 mm")))
sketch8.addConstraint(Sketcher.Constraint("DistanceY", -1, 1, 1, 3, Q("66 mm")))
sketch8.addConstraint(Sketcher.Constraint("DistanceX", -1, 1, 2, 3, Q("155 mm")))
sketch8.addConstraint(Sketcher.Constraint("DistanceX", -1, 1, 4, 3, Q("230 mm")))
sketch8.addConstraint(Sketcher.Constraint("DistanceY", -1, 1, 4, 3, Q("128 mm")))
sketch8.addConstraint(Sketcher.Constraint("DistanceX", -1, 1, 5, 3, Q("200 mm")))
sketch8.addConstraint(Sketcher.Constraint("DistanceX", -1, 1, 6, 3, Q("50 mm")))
sketch8.addConstraint(Sketcher.Constraint("DistanceX", -1, 1, 7, 3, Q("20 mm")))
sketch8.setExpression("Constraints[14]", "Params.sketch8_diameter")
doc.recompute()
hole = body.newObject("PartDesign::Hole", "Hole")
hole.Profile = sketch8
hole.ThreadType = "None"
hole.setExpression("Diameter", "Params.hole_diameter")
hole.DepthType = "Dimension"
hole.setExpression("Depth", "Params.hole_depth")
hole.DrillPoint = "Angled"
hole.DrillPointAngle = 118
hole.Reversed = True

# Sketch on YZ plane
sketch9 = body.newObject("Sketcher::SketchObject", "Sketch008")
sketch9.AttachmentSupport = (doc.getObject("YZ_Plane"), [""])
sketch9.MapMode = "FlatFace"
sketch9.AttachmentOffset = App.Placement(App.Vector(0, 0, 300), App.Rotation())
sketch9.addGeometry(Part.Circle(App.Vector(230, 128, 0), App.Vector(0, 0, 1), 3), False)
sketch9.addGeometry(Part.Circle(App.Vector(200, 128, 0), App.Vector(0, 0, 1), 3), False)
sketch9.addGeometry(Part.Circle(App.Vector(155, 116, 0), App.Vector(0, 0, 1), 3), False)
sketch9.addGeometry(Part.Circle(App.Vector(155, 66, 0), App.Vector(0, 0, 1), 3), False)
sketch9.addGeometry(Part.Circle(App.Vector(95, 66, 0), App.Vector(0, 0, 1), 3), False)
sketch9.addGeometry(Part.Circle(App.Vector(95, 116, 0), App.Vector(0, 0, 1), 3), False)
sketch9.addGeometry(Part.Circle(App.Vector(50, 128, 0), App.Vector(0, 0, 1), 3), False)
sketch9.addGeometry(Part.Circle(App.Vector(20, 128, 0), App.Vector(0, 0, 1), 3), False)
sketch9.addConstraint(Sketcher.Constraint("Equal", 0, 1))
sketch9.addConstraint(Sketcher.Constraint("Equal", 1, 2))
sketch9.addConstraint(Sketcher.Constraint("Equal", 2, 3))
sketch9.addConstraint(Sketcher.Constraint("Equal", 3, 4))
sketch9.addConstraint(Sketcher.Constraint("Equal", 4, 5))
sketch9.addConstraint(Sketcher.Constraint("Equal", 5, 6))
sketch9.addConstraint(Sketcher.Constraint("Equal", 6, 7))
sketch9.addConstraint(Sketcher.Constraint("Horizontal", 0, 3, 1, 3))
sketch9.addConstraint(Sketcher.Constraint("Horizontal", 3, 3, 4, 3))
sketch9.addConstraint(Sketcher.Constraint("Horizontal", 2, 3, 5, 3))
sketch9.addConstraint(Sketcher.Constraint("Horizontal", 1, 3, 6, 3))
sketch9.addConstraint(Sketcher.Constraint("Horizontal", 6, 3, 7, 3))
sketch9.addConstraint(Sketcher.Constraint("Vertical", 2, 3, 3, 3))
sketch9.addConstraint(Sketcher.Constraint("Vertical", 4, 3, 5, 3))
sketch9.addConstraint(Sketcher.Constraint("Diameter", 0, Q("6 mm")))
sketch9.addConstraint(Sketcher.Constraint("DistanceX", -1, 1, 0, 3, Q("230 mm")))
sketch9.addConstraint(Sketcher.Constraint("DistanceY", -1, 1, 0, 3, Q("128 mm")))
sketch9.addConstraint(Sketcher.Constraint("DistanceX", -1, 1, 1, 3, Q("200 mm")))
sketch9.addConstraint(Sketcher.Constraint("DistanceX", -1, 1, 2, 3, Q("155 mm")))
sketch9.addConstraint(Sketcher.Constraint("DistanceY", -1, 1, 2, 3, Q("116 mm")))
sketch9.addConstraint(Sketcher.Constraint("DistanceY", -1, 1, 3, 3, Q("66 mm")))
sketch9.addConstraint(Sketcher.Constraint("DistanceX", -1, 1, 4, 3, Q("95 mm")))
sketch9.addConstraint(Sketcher.Constraint("DistanceX", -1, 1, 6, 3, Q("50 mm")))
sketch9.addConstraint(Sketcher.Constraint("DistanceX", -1, 1, 7, 3, Q("20 mm")))
sketch9.setExpression("Constraints[14]", "Params.sketch9_diameter")
doc.recompute()
hole2 = body.newObject("PartDesign::Hole", "Hole001")
hole2.Profile = sketch9
hole2.ThreadType = "None"
hole2.setExpression("Diameter", "Params.hole2_diameter")
hole2.DepthType = "Dimension"
hole2.setExpression("Depth", "Params.hole2_depth")
hole2.DrillPoint = "Angled"
hole2.DrillPointAngle = 118

# Sketch on YZ plane
sketch10 = body.newObject("Sketcher::SketchObject", "Sketch009")
sketch10.AttachmentSupport = (doc.getObject("YZ_Plane"), [""])
sketch10.MapMode = "FlatFace"
sketch10.AttachmentOffset = App.Placement(App.Vector(0, 0, 300), App.Rotation())
sketch10.addGeometry(Part.Circle(App.Vector(215, 110, 0), App.Vector(0, 0, 1), 3), False)
sketch10.addGeometry(Part.Circle(App.Vector(215, 80, 0), App.Vector(0, 0, 1), 3), False)
sketch10.addGeometry(Part.Circle(App.Vector(215, 50, 0), App.Vector(0, 0, 1), 3), False)
sketch10.addGeometry(Part.Circle(App.Vector(35, 50, 0), App.Vector(0, 0, 1), 3), False)
sketch10.addGeometry(Part.Circle(App.Vector(35, 80, 0), App.Vector(0, 0, 1), 3), False)
sketch10.addGeometry(Part.Circle(App.Vector(35, 110, 0), App.Vector(0, 0, 1), 3), False)
sketch10.addConstraint(Sketcher.Constraint("Equal", 0, 1))
sketch10.addConstraint(Sketcher.Constraint("Equal", 1, 2))
sketch10.addConstraint(Sketcher.Constraint("Equal", 2, 3))
sketch10.addConstraint(Sketcher.Constraint("Equal", 3, 4))
sketch10.addConstraint(Sketcher.Constraint("Equal", 4, 5))
sketch10.addConstraint(Sketcher.Constraint("Horizontal", 2, 3, 3, 3))
sketch10.addConstraint(Sketcher.Constraint("Horizontal", 1, 3, 4, 3))
sketch10.addConstraint(Sketcher.Constraint("Horizontal", 0, 3, 5, 3))
sketch10.addConstraint(Sketcher.Constraint("Vertical", 0, 3, 1, 3))
sketch10.addConstraint(Sketcher.Constraint("Vertical", 1, 3, 2, 3))
sketch10.addConstraint(Sketcher.Constraint("Vertical", 3, 3, 4, 3))
sketch10.addConstraint(Sketcher.Constraint("Vertical", 4, 3, 5, 3))
sketch10.addConstraint(Sketcher.Constraint("Diameter", 0, Q("6 mm")))
sketch10.addConstraint(Sketcher.Constraint("DistanceX", -1, 1, 0, 3, Q("215 mm")))
sketch10.addConstraint(Sketcher.Constraint("DistanceY", -1, 1, 0, 3, Q("110 mm")))
sketch10.addConstraint(Sketcher.Constraint("DistanceY", -1, 1, 1, 3, Q("80 mm")))
sketch10.addConstraint(Sketcher.Constraint("DistanceY", -1, 1, 2, 3, Q("50 mm")))
sketch10.addConstraint(Sketcher.Constraint("DistanceX", -1, 1, 3, 3, Q("35 mm")))
sketch10.setExpression("Constraints[12]", "Params.sketch10_diameter")
doc.recompute()
hole3 = body.newObject("PartDesign::Hole", "Hole002")
hole3.Profile = sketch10
hole3.ThreadType = "None"
hole3.setExpression("Diameter", "Params.hole3_diameter")
hole3.DepthType = "Dimension"
hole3.setExpression("Depth", "Params.hole3_depth")
hole3.DrillPoint = "Angled"
hole3.DrillPointAngle = 118
doc.recompute()

fillet = body.newObject("PartDesign::Fillet", "Fillet")
fillet.Base = (hole3, edges_at(hole3, [
    (210, -30, 80.659),
    (-210, -30, 80.659),
    (-105, 5, 74),
    (105, 5, 74),
]))
fillet.setExpression("Radius", "Params.fillet_radius")

# Sketch on YZ plane
sketch11 = body.newObject("Sketcher::SketchObject", "Sketch010")
sketch11.AttachmentSupport = (doc.getObject("YZ_Plane"), [""])
sketch11.MapMode = "FlatFace"
sketch11.AttachmentOffset = App.Placement(App.Vector(0, 0, -300), App.Rotation())
sketch11.addGeometry(Part.Circle(App.Vector(215, 110, 0), App.Vector(0, 0, 1), 3), False)
sketch11.addGeometry(Part.Circle(App.Vector(215, 80, 0), App.Vector(0, 0, 1), 3), False)
sketch11.addGeometry(Part.Circle(App.Vector(215, 50, 0), App.Vector(0, 0, 1), 3), False)
sketch11.addGeometry(Part.Circle(App.Vector(35, 110, 0), App.Vector(0, 0, 1), 3), False)
sketch11.addGeometry(Part.Circle(App.Vector(35, 80, 0), App.Vector(0, 0, 1), 3), False)
sketch11.addGeometry(Part.Circle(App.Vector(35, 50, 0), App.Vector(0, 0, 1), 3), False)
sketch11.addConstraint(Sketcher.Constraint("Equal", 0, 1))
sketch11.addConstraint(Sketcher.Constraint("Equal", 1, 2))
sketch11.addConstraint(Sketcher.Constraint("Equal", 2, 3))
sketch11.addConstraint(Sketcher.Constraint("Equal", 3, 4))
sketch11.addConstraint(Sketcher.Constraint("Equal", 4, 5))
sketch11.addConstraint(Sketcher.Constraint("Horizontal", 0, 3, 3, 3))
sketch11.addConstraint(Sketcher.Constraint("Horizontal", 1, 3, 4, 3))
sketch11.addConstraint(Sketcher.Constraint("Horizontal", 2, 3, 5, 3))
sketch11.addConstraint(Sketcher.Constraint("Vertical", 0, 3, 1, 3))
sketch11.addConstraint(Sketcher.Constraint("Vertical", 1, 3, 2, 3))
sketch11.addConstraint(Sketcher.Constraint("Vertical", 3, 3, 4, 3))
sketch11.addConstraint(Sketcher.Constraint("Vertical", 4, 3, 5, 3))
sketch11.addConstraint(Sketcher.Constraint("Diameter", 0, Q("6 mm")))
sketch11.addConstraint(Sketcher.Constraint("DistanceX", -1, 1, 0, 3, Q("215 mm")))
sketch11.addConstraint(Sketcher.Constraint("DistanceY", -1, 1, 0, 3, Q("110 mm")))
sketch11.addConstraint(Sketcher.Constraint("DistanceY", -1, 1, 1, 3, Q("80 mm")))
sketch11.addConstraint(Sketcher.Constraint("DistanceY", -1, 1, 2, 3, Q("50 mm")))
sketch11.addConstraint(Sketcher.Constraint("DistanceX", -1, 1, 3, 3, Q("35 mm")))
sketch11.setExpression("Constraints[12]", "Params.sketch11_diameter")
doc.recompute()
hole4 = body.newObject("PartDesign::Hole", "Hole003")
hole4.Profile = sketch11
hole4.ThreadType = "None"
hole4.setExpression("Diameter", "Params.hole4_diameter")
hole4.DepthType = "Dimension"
hole4.setExpression("Depth", "Params.hole4_depth")
hole4.DrillPoint = "Angled"
hole4.DrillPointAngle = 118
hole4.Reversed = True

# Sketch on XZ plane
sketch12 = body.newObject("Sketcher::SketchObject", "Sketch011")
sketch12.AttachmentSupport = (doc.getObject("XZ_Plane"), [""])
sketch12.MapMode = "FlatFace"
sketch12.AttachmentOffset = App.Placement(App.Vector(0, 0, -250), App.Rotation())
sketch12.addGeometry(Part.Circle(App.Vector(-150, 74, 0), App.Vector(0, 0, 1), 5), False)
sketch12.addGeometry(Part.Circle(App.Vector(150, 74, 0), App.Vector(0, 0, 1), 5), False)
sketch12.addConstraint(Sketcher.Constraint("Equal", 0, 1))
sketch12.addConstraint(Sketcher.Constraint("Symmetric", 0, 3, 1, 3, -2))
sketch12.addConstraint(Sketcher.Constraint("Diameter", 0, Q("10 mm")))
sketch12.addConstraint(Sketcher.Constraint("DistanceX", 0, 3, -1, 1, Q("150 mm")))
sketch12.addConstraint(Sketcher.Constraint("DistanceY", -1, 1, 0, 3, Q("74 mm")))
sketch12.setExpression("Constraints[2]", "Params.sketch12_diameter")
doc.recompute()
hole5 = body.newObject("PartDesign::Hole", "Hole004")
hole5.Profile = sketch12
hole5.ThreadType = "None"
hole5.setExpression("Diameter", "Params.hole5_diameter")
hole5.DepthType = "Dimension"
hole5.setExpression("Depth", "Params.hole5_depth")
hole5.DrillPoint = "Angled"
hole5.DrillPointAngle = 118
hole5.Reversed = True

doc.recompute()
